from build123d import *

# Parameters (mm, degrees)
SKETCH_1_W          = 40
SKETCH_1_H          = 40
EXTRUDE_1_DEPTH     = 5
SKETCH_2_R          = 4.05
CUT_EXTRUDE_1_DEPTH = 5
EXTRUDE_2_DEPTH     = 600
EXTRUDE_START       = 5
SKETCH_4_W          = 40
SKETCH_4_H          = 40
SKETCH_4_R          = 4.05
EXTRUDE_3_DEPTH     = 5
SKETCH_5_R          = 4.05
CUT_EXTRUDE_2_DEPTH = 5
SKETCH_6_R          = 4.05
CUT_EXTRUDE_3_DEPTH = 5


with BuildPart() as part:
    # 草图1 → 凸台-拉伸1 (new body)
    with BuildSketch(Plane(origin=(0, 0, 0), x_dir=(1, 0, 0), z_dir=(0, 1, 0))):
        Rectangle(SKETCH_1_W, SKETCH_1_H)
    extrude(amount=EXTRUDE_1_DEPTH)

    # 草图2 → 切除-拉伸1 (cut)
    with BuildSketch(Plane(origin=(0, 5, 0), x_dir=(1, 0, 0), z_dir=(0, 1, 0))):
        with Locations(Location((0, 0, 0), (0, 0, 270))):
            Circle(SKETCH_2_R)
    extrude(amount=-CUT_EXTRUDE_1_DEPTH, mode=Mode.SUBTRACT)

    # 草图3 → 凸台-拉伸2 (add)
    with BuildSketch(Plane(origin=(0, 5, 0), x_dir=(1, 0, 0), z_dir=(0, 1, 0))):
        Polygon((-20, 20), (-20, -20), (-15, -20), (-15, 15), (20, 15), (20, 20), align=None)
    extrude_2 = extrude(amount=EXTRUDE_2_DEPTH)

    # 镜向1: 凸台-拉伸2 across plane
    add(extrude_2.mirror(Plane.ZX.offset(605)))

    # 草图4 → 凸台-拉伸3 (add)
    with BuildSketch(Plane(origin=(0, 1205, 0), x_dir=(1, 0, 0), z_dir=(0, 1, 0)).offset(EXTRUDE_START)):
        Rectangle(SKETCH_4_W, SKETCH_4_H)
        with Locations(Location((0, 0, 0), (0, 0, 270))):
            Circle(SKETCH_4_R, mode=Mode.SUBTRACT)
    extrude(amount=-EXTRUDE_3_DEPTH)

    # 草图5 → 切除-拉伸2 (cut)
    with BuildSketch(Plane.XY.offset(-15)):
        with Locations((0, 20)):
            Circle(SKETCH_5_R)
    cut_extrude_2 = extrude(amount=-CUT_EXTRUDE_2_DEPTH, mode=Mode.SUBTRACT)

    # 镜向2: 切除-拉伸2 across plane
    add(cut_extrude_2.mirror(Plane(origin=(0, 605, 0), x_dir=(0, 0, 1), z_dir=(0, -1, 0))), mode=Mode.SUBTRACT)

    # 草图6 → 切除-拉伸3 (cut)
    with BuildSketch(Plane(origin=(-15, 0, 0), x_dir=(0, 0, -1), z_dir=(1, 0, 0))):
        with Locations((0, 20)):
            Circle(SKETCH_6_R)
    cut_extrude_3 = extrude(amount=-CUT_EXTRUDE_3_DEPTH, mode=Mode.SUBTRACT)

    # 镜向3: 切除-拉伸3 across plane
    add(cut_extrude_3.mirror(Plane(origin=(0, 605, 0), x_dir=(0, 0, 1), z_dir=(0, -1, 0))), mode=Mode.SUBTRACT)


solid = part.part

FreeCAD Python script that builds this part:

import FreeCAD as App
import Part
import Sketcher
from FreeCAD import Vector
Q = App.Units.Quantity

doc = App.newDocument("Part")
body = doc.addObject("PartDesign::Body", "Body")

# Sketch on XZ plane
sketch1 = body.newObject("Sketcher::SketchObject", "Sketch")
sketch1.AttachmentSupport = (doc.getObject("XZ_Plane"), [""])
sketch1.MapMode = "FlatFace"
sketch1.addGeometry([
    Part.LineSegment(Vector(-20, -20, 0), Vector(-20, 20, 0)),
    Part.LineSegment(Vector(-20, 20, 0), Vector(20, 20, 0)),
    Part.LineSegment(Vector(20, 20, 0), Vector(20, -20, 0)),
    Part.LineSegment(Vector(20, -20, 0), Vector(-20, -20, 0)),
], False)
sketch1.addConstraint([
    Sketcher.Constraint("Coincident", 0, 2, 1, 1),
    Sketcher.Constraint("Coincident", 1, 2, 2, 1),
    Sketcher.Constraint("Coincident", 2, 2, 3, 1),
    Sketcher.Constraint("Coincident", 3, 2, 0, 1),
    Sketcher.Constraint("Vertical", 0),
    Sketcher.Constraint("Horizontal", 1),
    Sketcher.Constraint("Vertical", 2),
    Sketcher.Constraint("Horizontal", 3),
    Sketcher.Constraint("Symmetric", 0, 2, 2, 2, -1, 1),
    Sketcher.Constraint("Equal", 3, 0),
    Sketcher.Constraint("DistanceX", 1, 1, 1, 2, Q("40 mm")),
])
pad1 = body.newObject("PartDesign::Pad", "Pad")
pad1.Profile = sketch1
pad1.Length = 5
pad1.Reversed = True

# Sketch on XZ plane
sketch2 = body.newObject("Sketcher::SketchObject", "Sketch001")
sketch2.AttachmentSupport = (doc.getObject("XZ_Plane"), [""])
sketch2.MapMode = "FlatFace"
sketch2.AttachmentOffset = App.Placement(Vector(0, 0, -5), App.Rotation())
sketch2.addGeometry(Part.Circle(Vector(0, 0, 0), Vector(0, 0, 1), 4), False)
sketch2.addConstraint([
    Sketcher.Constraint("Coincident", 0, 3, -1, 1),
    Sketcher.Constraint("Diameter", 0, Q("8.1 mm")),
])
pocket1 = body.newObject("PartDesign::Pocket", "Pocket")
pocket1.Profile = sketch2
pocket1.Length = 5
pocket1.Reversed = True

# Sketch on XZ plane
sketch3 = body.newObject("Sketcher::SketchObject", "Sketch002")
sketch3.AttachmentSupport = (doc.getObject("XZ_Plane"), [""])
sketch3.MapMode = "FlatFace"
sketch3.AttachmentOffset = App.Placement(Vector(0, 0, -5), App.Rotation())
sketch3.addGeometry([
    Part.LineSegment(Vector(-20, -20, 0), Vector(-20, 20, 0)),  # 0
    Part.LineSegment(Vector(-20, 20, 0), Vector(-15, 20, 0)),  # 1
    Part.LineSegment(Vector(-15, 20, 0), Vector(-15, -15, 0)),  # 2
    Part.LineSegment(Vector(-15, -15, 0), Vector(20, -15, 0)),  # 3
    Part.LineSegment(Vector(20, -15, 0), Vector(20, -20, 0)),  # 4
    Part.LineSegment(Vector(20, -20, 0), Vector(-20, -20, 0)),  # 5
], False)
sketch3.addConstraint([
    Sketcher.Constraint("Coincident", 0, 2, 1, 1),
    Sketcher.Constraint("Coincident", 1, 2, 2, 1),
    Sketcher.Constraint("Coincident", 2, 2, 3, 1),
    Sketcher.Constraint("Coincident", 3, 2, 4, 1),
    Sketcher.Constraint("Coincident", 4, 2, 5, 1),
    Sketcher.Constraint("Coincident", 5, 2, 0, 1),
    Sketcher.Constraint("Vertical", 0),
    Sketcher.Constraint("Horizontal", 1),
    Sketcher.Constraint("Vertical", 2),
    Sketcher.Constraint("Horizontal", 3),
    Sketcher.Constraint("Vertical", 4),
    Sketcher.Constraint("Horizontal", 5),
    Sketcher.Constraint("Symmetric", 0, 2, 4, 2, -1, 1),
    Sketcher.Constraint("Equal", 5, 0),
    Sketcher.Constraint("Equal", 3, 2),
    Sketcher.Constraint("DistanceX", 1, 1, 1, 2, Q("5 mm")),
    Sketcher.Constraint("DistanceX", 3, 1, 3, 2, Q("35 mm")),
])
pad2 = body.newObject("PartDesign::Pad", "Pad001")
pad2.Profile = sketch3
pad2.Length = 600
pad2.Reversed = True
doc.recompute()

datumplane = body.newObject("PartDesign::Plane", "DatumPlane")
datumplane.AttachmentSupport = (doc.getObject("XZ_Plane"), [""])
datumplane.MapMode = "FlatFace"
datumplane.AttachmentOffset = App.Placement(Vector(0, 0, -605), App.Rotation())
mirrored = body.newObject("PartDesign::Mirrored", "Mirrored")
mirrored.Originals = [pad2]
mirrored.MirrorPlane = (datumplane, [""])
body.Tip = mirrored

# Sketch on XZ plane
sketch4 = body.newObject("Sketcher::SketchObject", "Sketch003")
sketch4.AttachmentSupport = (doc.getObject("XZ_Plane"), [""])
sketch4.MapMode = "FlatFace"
sketch4.AttachmentOffset = App.Placement(Vector(0, 0, -1210), App.Rotation())
sketch4.addGeometry([
    Part.LineSegment(Vector(-20, -20, 0), Vector(-20, 20, 0)),  # 0
    Part.LineSegment(Vector(-20, 20, 0), Vector(20, 20, 0)),  # 1
    Part.LineSegment(Vector(20, 20, 0), Vector(20, -20, 0)),  # 2
    Part.LineSegment(Vector(20, -20, 0), Vector(-20, -20, 0)),  # 3
    Part.Circle(Vector(0, 0, 0), Vector(0, 0, 1), 4),  # 4
], False)
sketch4.addConstraint([
    Sketcher.Constraint("Coincident", 0, 2, 1, 1),
    Sketcher.Constraint("Coincident", 1, 2, 2, 1),
    Sketcher.Constraint("Coincident", 2, 2, 3, 1),
    Sketcher.Constraint("Coincident", 3, 2, 0, 1),
    Sketcher.Constraint("Vertical", 0),
    Sketcher.Constraint("Horizontal", 1),
    Sketcher.Constraint("Vertical", 2),
    Sketcher.Constraint("Horizontal", 3),
    Sketcher.Constraint("Coincident", 4, 3, -1, 1),
    Sketcher.Constraint("Symmetric", 0, 2, 2, 2, -1, 1),
    Sketcher.Constraint("Equal", 3, 0),
    Sketcher.Constraint("Diameter", 4, Q("8.1 mm")),
    Sketcher.Constraint("DistanceX", 1, 1, 1, 2, Q("40 mm")),
])
pad3 = body.newObject("PartDesign::Pad", "Pad002")
pad3.Profile = sketch4
pad3.Length = 5

# Sketch on XY plane
sketch5 = body.newObject("Sketcher::SketchObject", "Sketch004")
sketch5.AttachmentSupport = (doc.getObject("XY_Plane"), [""])
sketch5.MapMode = "FlatFace"
sketch5.AttachmentOffset = App.Placement(Vector(0, 0, -15), App.Rotation())
sketch5.addGeometry(Part.Circle(Vector(0, 20, 0), Vector(0, 0, 1), 4), False)
sketch5.addConstraint([
    Sketcher.Constraint("PointOnObject", 0, 3, -2),
    Sketcher.Constraint("Diameter", 0, Q("8.1 mm")),
    Sketcher.Constraint("DistanceY", -1, 1, 0, 3, Q("20 mm")),
])
pocket2 = body.newObject("PartDesign::Pocket", "Pocket001")
pocket2.Profile = sketch5
pocket2.Length = 5
doc.recompute()

datumplane2 = body.newObject("PartDesign::Plane", "DatumPlane001")
datumplane2.AttachmentSupport = (doc.getObject("XZ_Plane"), [""])
datumplane2.MapMode = "FlatFace"
datumplane2.AttachmentOffset = App.Placement(Vector(0, 0, -605), App.Rotation())
mirrored2 = body.newObject("PartDesign::Mirrored", "Mirrored001")
mirrored2.Originals = [pocket2]
mirrored2.MirrorPlane = (datumplane2, [""])
body.Tip = mirrored2

# Sketch on YZ plane
sketch6 = body.newObject("Sketcher::SketchObject", "Sketch005")
sketch6.AttachmentSupport = (doc.getObject("YZ_Plane"), [""])
sketch6.MapMode = "FlatFace"
sketch6.AttachmentOffset = App.Placement(Vector(0, 0, -15), App.Rotation())
sketch6.addGeometry(Part.Circle(Vector(20, 0, 0), Vector(0, 0, 1), 4), False)
sketch6.addConstraint([
    Sketcher.Constraint("PointOnObject", 0, 3, -1),
    Sketcher.Constraint("Diameter", 0, Q("8.1 mm")),
    Sketcher.Constraint("DistanceX", -1, 1, 0, 3, Q("20 mm")),
])
pocket3 = body.newObject("PartDesign::Pocket", "Pocket002")
pocket3.Profile = sketch6
pocket3.Length = 5
doc.recompute()

datumplane3 = body.newObject("PartDesign::Plane", "DatumPlane002")
datumplane3.AttachmentSupport = (doc.getObject("XZ_Plane"), [""])
datumplane3.MapMode = "FlatFace"
datumplane3.AttachmentOffset = App.Placement(Vector(0, 0, -605), App.Rotation())
mirrored3 = body.newObject("PartDesign::Mirrored", "Mirrored002")
mirrored3.Originals = [pocket3]
mirrored3.MirrorPlane = (datumplane3, [""])
body.Tip = mirrored3

doc.recompute()
